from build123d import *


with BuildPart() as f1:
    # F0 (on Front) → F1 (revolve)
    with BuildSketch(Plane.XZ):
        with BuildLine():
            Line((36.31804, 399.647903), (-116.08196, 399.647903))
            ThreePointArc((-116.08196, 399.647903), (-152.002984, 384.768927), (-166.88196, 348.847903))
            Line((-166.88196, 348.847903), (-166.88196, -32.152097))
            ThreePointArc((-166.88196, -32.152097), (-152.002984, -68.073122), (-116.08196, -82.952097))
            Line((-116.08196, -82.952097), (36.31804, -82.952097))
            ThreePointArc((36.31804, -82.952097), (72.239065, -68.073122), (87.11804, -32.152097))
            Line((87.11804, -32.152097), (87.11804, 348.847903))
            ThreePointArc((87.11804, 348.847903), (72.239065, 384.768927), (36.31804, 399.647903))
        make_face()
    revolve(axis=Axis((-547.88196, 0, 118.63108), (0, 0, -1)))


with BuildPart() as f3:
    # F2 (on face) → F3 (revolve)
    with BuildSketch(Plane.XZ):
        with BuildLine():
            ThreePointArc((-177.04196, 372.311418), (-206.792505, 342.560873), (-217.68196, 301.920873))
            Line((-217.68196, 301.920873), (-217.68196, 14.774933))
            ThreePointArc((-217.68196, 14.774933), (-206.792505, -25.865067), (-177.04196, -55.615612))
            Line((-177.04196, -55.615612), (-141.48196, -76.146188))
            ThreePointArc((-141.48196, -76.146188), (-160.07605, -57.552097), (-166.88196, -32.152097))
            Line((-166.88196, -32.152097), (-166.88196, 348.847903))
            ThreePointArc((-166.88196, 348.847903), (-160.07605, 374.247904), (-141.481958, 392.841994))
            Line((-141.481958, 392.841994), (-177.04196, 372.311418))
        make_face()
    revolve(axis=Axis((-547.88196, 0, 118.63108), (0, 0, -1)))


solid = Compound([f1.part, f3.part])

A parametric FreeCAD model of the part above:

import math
import FreeCAD as App
import Part
import Sketcher

V = App.Vector
Q = App.Units.Quantity

doc = App.newDocument("Part")
body = doc.addObject("PartDesign::Body", "Body")

# Sketch on XZ plane
sketch1 = doc.addObject("Sketcher::SketchObject", "Sketch")
body.addObject(sketch1)
sketch1.AttachmentSupport = (doc.XZ_Plane, [""])
sketch1.MapMode = "FlatFace"
sketch1.addGeometry([
    Part.LineSegment(V(36, 400, 0), V(-116, 400, 0)),  # 0
    Part.ArcOfCircle(Part.Circle(V(-116, 349, 0), V(0, 0, 1), 51), math.radians(90), math.radians(180)),  # 1
    Part.LineSegment(V(-167, 349, 0), V(-167, -32, 0)),  # 2
    Part.ArcOfCircle(Part.Circle(V(-116, -32, 0), V(0, 0, 1), 51), math.radians(180), math.radians(270)),  # 3
    Part.LineSegment(V(-116, -83, 0), V(36, -83, 0)),  # 4
    Part.ArcOfCircle(Part.Circle(V(36, -32, 0), V(0, 0, 1), 51), math.radians(-90), math.radians(0)),  # 5
    Part.LineSegment(V(87, -32, 0), V(87, 349, 0)),  # 6
    Part.ArcOfCircle(Part.Circle(V(36, 349, 0), V(0, 0, 1), 51), math.radians(0), math.radians(90)),  # 7
], False)
sketch1.addGeometry(Part.LineSegment(V(-548, 400, 0), V(-548, -83, 0)), True)  # axis
sketch1.addConstraint([
    Sketcher.Constraint("Tangent", 0, 2, 1, 1),
    Sketcher.Constraint("Tangent", 1, 2, 2, 1),
    Sketcher.Constraint("Tangent", 2, 2, 3, 1),
    Sketcher.Constraint("Tangent", 3, 2, 4, 1),
    Sketcher.Constraint("Tangent", 4, 2, 5, 1),
    Sketcher.Constraint("Tangent", 5, 2, 6, 1),
    Sketcher.Constraint("Tangent", 6, 2, 7, 1),
    Sketcher.Constraint("Tangent", 7, 2, 0, 1),
    Sketcher.Constraint("Horizontal", 0),
    Sketcher.Constraint("Vertical", 2),
    Sketcher.Constraint("Horizontal", 4),
    Sketcher.Constraint("Vertical", 6),
    Sketcher.Constraint("Vertical", 8),
    Sketcher.Constraint("Equal", 1, 3),
    Sketcher.Constraint("Equal", 3, 5),
    Sketcher.Constraint("Equal", 5, 7),
    Sketcher.Constraint("Horizontal", 7, 2, 8, 1),
    Sketcher.Constraint("Horizontal", 4, 2, 8, 2),
    Sketcher.Constraint("Radius", 1, Q("2.0000001 in")),
    Sketcher.Constraint("DistanceX", 0, 2, 0, 1, Q("6 in")),
    Sketcher.Constraint("DistanceY", 2, 2, 2, 1, Q("15 in")),
    Sketcher.Constraint("DistanceX", 8, 1, 1, 2, Q("15 in")),
    Sketcher.Constraint("DistanceY", -1, 1, 1, 3, Q("348.847901 mm")),
    Sketcher.Constraint("DistanceX", 1, 3, -1, 1, Q("116.081958 mm")),
])
revolution = doc.addObject("PartDesign::Revolution", "Revolution")
body.addObject(revolution)
revolution.Profile = sketch1
revolution.ReferenceAxis = (sketch1, ["Axis0"])
revolution.Angle = 360
body2 = doc.addObject("PartDesign::Body", "Body001")

# Sketch on XZ plane
sketch2 = doc.addObject("Sketcher::SketchObject", "Sketch001")
body2.addObject(sketch2)
sketch2.AttachmentSupport = (doc.getObject("XZ_Plane001"), [""])
sketch2.MapMode = "FlatFace"
sketch2.addGeometry([
    Part.ArcOfCircle(Part.Circle(V(-136, 302, 0), V(0, 0, 1), 81), math.radians(120), math.radians(180)),  # 0
    Part.LineSegment(V(-218, 302, 0), V(-218, 15, 0)),  # 1
    Part.ArcOfCircle(Part.Circle(V(-136, 15, 0), V(0, 0, 1), 81), math.radians(180), math.radians(240)),  # 2
    Part.LineSegment(V(-177, -56, 0), V(-141, -76, 0)),  # 3
    Part.ArcOfCircle(Part.Circle(V(-116, -32, 0), V(0, 0, 1), 51), math.radians(-180), math.radians(-120)),  # 4
    Part.LineSegment(V(-167, -32, 0), V(-167, 349, 0)),  # 5
    Part.ArcOfCircle(Part.Circle(V(-116, 349, 0), V(0, 0, 1), 51), math.radians(120), math.radians(180)),  # 6
    Part.LineSegment(V(-141, 393, 0), V(-177, 372, 0)),  # 7
], False)
sketch2.addGeometry(Part.LineSegment(V(-548, 393, 0), V(-548, -76, 0)), True)  # axis
sketch2.addConstraint([
    Sketcher.Constraint("Tangent", 0, 2, 1, 1),
    Sketcher.Constraint("Tangent", 1, 2, 2, 1),
    Sketcher.Constraint("Tangent", 2, 2, 3, 1),
    Sketcher.Constraint("Tangent", 3, 2, 4, 2),
    Sketcher.Constraint("Tangent", 4, 1, 5, 1),
    Sketcher.Constraint("Tangent", 5, 2, 6, 2),
    Sketcher.Constraint("Tangent", 6, 1, 7, 1),
    Sketcher.Constraint("Tangent", 7, 2, 0, 1),
    Sketcher.Constraint("Vertical", 1),
    Sketcher.Constraint("Vertical", 5),
    Sketcher.Constraint("Vertical", 8),
    Sketcher.Constraint("Equal", 0, 2),
    Sketcher.Constraint("Horizontal", 6, 1, 8, 1),
    Sketcher.Constraint("Horizontal", 3, 2, 8, 2),
    Sketcher.Constraint("Vertical", 3, 2, 6, 1),
    Sketcher.Constraint("Vertical", 2, 2, 7, 2),
    Sketcher.Constraint("Radius", 4, Q("2.0000002 in")),
    Sketcher.Constraint("Radius", 0, Q("3.2 in")),
    Sketcher.Constraint("DistanceY", 5, 1, 5, 2, Q("15 in")),
    Sketcher.Constraint("Angle", 3, Q("-30.000001 deg")),
    Sketcher.Constraint("DistanceX", 0, 2, 6, 3, Q("3.9999999 in")),
    Sketcher.Constraint("DistanceX", 8, 1, 0, 2, Q("13 in")),
    Sketcher.Constraint("DistanceX", 0, 3, -1, 1, Q("136.40196 mm")),
    Sketcher.Constraint("DistanceY", -1, 1, 7, 2, Q("372.311418 mm")),
])
revolution2 = doc.addObject("PartDesign::Revolution", "Revolution001")
body2.addObject(revolution2)
revolution2.Profile = sketch2
revolution2.ReferenceAxis = (sketch2, ["Axis0"])
revolution2.Angle = 360

doc.recompute()
